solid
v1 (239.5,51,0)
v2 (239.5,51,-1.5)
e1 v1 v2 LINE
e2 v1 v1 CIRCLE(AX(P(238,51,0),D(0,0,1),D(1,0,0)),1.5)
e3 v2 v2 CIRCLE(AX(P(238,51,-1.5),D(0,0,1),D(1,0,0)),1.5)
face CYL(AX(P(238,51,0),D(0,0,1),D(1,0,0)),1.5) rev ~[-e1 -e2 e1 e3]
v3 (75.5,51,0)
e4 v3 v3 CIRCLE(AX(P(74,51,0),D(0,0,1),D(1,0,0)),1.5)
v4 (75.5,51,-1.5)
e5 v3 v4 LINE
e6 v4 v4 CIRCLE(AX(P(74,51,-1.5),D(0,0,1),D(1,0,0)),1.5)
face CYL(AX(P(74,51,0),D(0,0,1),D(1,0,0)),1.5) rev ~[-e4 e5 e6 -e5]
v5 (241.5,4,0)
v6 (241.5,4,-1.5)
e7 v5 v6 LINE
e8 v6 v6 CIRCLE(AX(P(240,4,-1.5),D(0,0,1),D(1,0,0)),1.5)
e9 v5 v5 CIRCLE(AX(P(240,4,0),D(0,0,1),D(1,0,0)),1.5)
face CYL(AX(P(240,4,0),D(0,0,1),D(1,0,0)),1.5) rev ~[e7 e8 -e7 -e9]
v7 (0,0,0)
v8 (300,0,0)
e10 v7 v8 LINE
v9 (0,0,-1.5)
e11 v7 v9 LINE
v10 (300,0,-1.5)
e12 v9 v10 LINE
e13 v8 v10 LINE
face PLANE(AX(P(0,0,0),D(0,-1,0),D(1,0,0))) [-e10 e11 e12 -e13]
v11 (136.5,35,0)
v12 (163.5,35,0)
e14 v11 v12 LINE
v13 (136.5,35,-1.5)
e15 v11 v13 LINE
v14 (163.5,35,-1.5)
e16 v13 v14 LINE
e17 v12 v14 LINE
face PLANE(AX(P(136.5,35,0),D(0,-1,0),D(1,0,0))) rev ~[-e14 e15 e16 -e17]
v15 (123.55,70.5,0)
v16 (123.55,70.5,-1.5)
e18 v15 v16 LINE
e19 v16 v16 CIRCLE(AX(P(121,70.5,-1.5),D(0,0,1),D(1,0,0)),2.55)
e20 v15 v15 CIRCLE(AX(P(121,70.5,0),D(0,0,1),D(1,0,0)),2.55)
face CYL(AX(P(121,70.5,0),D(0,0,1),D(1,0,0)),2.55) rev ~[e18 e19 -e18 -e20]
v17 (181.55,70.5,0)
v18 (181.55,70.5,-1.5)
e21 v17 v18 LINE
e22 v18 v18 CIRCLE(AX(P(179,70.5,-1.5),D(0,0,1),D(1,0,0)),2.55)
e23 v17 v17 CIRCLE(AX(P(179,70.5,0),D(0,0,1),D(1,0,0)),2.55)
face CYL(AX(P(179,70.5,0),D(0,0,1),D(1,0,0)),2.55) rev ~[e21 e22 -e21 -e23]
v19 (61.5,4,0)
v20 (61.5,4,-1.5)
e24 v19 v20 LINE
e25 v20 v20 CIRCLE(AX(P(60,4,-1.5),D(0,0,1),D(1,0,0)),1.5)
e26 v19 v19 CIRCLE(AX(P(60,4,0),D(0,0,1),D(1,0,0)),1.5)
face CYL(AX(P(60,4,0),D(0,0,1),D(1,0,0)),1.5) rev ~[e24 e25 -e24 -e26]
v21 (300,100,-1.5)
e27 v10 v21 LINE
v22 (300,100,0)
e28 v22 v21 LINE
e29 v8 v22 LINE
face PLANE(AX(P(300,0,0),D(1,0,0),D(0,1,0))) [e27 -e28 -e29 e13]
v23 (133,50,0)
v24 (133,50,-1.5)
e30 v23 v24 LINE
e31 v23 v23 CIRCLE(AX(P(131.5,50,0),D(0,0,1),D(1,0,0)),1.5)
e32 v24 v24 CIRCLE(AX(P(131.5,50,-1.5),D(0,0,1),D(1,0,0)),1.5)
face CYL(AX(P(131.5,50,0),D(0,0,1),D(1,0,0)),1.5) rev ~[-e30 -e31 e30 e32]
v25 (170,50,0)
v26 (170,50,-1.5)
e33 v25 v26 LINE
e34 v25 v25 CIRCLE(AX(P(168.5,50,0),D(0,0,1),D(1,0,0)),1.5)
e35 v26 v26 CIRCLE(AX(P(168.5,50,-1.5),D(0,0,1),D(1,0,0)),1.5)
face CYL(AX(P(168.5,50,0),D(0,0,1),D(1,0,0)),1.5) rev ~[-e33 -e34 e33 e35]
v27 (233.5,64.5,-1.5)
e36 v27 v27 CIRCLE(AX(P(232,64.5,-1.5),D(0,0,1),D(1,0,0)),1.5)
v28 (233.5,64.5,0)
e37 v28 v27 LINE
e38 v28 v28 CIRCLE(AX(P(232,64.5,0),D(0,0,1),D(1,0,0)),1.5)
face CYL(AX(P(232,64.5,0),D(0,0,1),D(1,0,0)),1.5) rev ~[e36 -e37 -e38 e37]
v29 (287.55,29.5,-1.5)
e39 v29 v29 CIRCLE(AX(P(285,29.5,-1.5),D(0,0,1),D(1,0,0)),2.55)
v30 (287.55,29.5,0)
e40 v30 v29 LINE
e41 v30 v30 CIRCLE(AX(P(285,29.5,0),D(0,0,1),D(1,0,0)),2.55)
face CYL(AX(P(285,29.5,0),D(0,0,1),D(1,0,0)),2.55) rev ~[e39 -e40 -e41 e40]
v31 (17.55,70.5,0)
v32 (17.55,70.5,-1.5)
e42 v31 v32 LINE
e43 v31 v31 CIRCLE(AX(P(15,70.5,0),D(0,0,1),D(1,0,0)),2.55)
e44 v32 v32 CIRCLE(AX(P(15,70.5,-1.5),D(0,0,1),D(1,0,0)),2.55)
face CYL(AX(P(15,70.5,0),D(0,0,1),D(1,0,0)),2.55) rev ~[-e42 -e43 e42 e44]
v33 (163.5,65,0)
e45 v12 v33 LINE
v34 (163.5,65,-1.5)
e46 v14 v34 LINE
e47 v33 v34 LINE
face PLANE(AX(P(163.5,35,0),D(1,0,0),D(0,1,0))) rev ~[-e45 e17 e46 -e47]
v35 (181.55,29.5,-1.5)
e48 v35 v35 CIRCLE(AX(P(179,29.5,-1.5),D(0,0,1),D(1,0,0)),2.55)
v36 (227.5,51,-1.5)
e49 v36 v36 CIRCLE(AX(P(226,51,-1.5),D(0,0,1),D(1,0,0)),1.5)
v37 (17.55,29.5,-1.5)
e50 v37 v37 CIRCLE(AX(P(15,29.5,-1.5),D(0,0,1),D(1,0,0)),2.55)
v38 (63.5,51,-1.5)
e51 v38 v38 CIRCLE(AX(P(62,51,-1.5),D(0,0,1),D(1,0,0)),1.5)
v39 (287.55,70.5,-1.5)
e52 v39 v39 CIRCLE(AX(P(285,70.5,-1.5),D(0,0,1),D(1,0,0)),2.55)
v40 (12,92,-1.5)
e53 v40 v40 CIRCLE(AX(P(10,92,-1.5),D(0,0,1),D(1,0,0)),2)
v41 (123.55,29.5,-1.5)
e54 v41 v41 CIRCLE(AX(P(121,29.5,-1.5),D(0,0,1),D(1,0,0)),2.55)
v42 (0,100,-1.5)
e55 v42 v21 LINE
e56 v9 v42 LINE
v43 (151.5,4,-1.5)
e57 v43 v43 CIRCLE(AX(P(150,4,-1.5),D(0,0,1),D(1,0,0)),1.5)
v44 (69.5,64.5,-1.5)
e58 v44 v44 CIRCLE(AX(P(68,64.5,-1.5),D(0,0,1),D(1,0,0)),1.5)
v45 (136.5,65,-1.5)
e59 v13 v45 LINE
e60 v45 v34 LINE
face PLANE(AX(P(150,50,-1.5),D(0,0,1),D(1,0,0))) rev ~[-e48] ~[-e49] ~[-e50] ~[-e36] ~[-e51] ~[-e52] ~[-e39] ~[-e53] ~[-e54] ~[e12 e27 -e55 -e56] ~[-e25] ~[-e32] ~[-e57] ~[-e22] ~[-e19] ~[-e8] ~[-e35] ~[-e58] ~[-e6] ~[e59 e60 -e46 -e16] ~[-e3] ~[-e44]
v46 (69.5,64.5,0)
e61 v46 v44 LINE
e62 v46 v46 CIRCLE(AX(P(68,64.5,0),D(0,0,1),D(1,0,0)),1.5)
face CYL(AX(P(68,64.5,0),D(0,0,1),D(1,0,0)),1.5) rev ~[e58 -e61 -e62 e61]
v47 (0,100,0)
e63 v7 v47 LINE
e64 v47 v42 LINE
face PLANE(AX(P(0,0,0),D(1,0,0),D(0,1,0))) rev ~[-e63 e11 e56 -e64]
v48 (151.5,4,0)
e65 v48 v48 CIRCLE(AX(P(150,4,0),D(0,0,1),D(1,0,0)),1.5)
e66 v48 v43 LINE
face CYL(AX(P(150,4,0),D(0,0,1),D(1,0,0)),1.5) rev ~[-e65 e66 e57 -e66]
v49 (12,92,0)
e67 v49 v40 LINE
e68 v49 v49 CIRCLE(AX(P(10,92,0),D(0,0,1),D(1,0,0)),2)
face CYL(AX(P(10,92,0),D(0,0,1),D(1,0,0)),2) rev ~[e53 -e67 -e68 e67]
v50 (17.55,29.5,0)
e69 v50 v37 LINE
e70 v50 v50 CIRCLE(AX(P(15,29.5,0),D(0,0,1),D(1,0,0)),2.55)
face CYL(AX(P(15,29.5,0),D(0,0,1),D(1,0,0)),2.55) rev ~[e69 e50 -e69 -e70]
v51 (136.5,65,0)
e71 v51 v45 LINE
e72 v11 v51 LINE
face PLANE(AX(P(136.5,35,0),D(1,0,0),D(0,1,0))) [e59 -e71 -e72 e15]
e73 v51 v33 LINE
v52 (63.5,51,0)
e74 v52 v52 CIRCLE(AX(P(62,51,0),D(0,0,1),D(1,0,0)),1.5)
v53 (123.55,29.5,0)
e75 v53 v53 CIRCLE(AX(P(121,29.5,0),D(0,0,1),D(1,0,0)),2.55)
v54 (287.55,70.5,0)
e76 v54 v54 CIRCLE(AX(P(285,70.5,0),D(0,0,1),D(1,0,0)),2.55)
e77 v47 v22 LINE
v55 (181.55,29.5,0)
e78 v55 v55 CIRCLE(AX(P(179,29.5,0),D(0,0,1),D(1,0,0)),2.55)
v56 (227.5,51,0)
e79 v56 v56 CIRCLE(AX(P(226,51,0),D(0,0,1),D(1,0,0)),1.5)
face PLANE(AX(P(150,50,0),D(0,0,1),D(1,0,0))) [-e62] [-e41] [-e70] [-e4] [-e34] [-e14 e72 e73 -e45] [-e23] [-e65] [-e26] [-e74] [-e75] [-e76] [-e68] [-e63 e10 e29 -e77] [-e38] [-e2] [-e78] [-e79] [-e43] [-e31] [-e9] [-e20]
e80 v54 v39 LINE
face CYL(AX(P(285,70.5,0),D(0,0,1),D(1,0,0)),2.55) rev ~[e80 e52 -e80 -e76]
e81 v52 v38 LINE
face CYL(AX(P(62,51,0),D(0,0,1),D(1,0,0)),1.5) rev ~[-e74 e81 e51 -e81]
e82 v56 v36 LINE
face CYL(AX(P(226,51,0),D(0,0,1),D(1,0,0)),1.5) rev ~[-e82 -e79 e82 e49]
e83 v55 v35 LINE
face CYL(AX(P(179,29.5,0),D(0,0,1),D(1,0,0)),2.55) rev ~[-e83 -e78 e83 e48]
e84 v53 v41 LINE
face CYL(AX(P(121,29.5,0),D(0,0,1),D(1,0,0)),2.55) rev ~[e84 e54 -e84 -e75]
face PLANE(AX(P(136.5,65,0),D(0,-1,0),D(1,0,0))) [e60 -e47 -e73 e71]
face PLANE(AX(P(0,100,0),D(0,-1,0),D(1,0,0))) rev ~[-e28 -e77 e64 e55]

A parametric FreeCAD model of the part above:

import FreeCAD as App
import Part
import Sketcher
from FreeCAD import Vector


def add_polygon(sketch, points):
    """Adds a closed chain of lines whose ends are joined by coincident constraints."""
    first, n = sketch.GeometryCount, len(points)
    for a, b in zip(points, points[1:] + points[:1]):
        sketch.addGeometry(Part.LineSegment(App.Vector(*a, 0), App.Vector(*b, 0)), False)
    for i in range(n):
        sketch.addConstraint(Sketcher.Constraint("Coincident", first + i, 2, first + (i + 1) % n, 1))

doc = App.newDocument("Part")
body = doc.addObject("PartDesign::Body", "Body")

# Sketch on XY plane
sketch1 = doc.addObject("Sketcher::SketchObject", "Sketch")
body.addObject(sketch1)
sketch1.AttachmentSupport = (doc.XY_Plane, [""])
sketch1.MapMode = "FlatFace"
add_polygon(sketch1, [(0, 100), (0, 0), (300, 0), (300, 100)])  # lines 0-3
sketch1.addGeometry(Part.Circle(Vector(60, 4, 0), Vector(0, 0, 1), 1.5), False)  # 4
sketch1.addGeometry(Part.Circle(Vector(15, 29.5, 0), Vector(0, 0, 1), 2.5), False)  # 5
sketch1.addGeometry(Part.Circle(Vector(121, 29.5, 0), Vector(0, 0, 1), 2.5), False)  # 6
sketch1.addGeometry(Part.Circle(Vector(150, 4, 0), Vector(0, 0, 1), 1.5), False)  # 7
sketch1.addGeometry(Part.Circle(Vector(240, 4, 0), Vector(0, 0, 1), 1.5), False)  # 8
sketch1.addGeometry(Part.Circle(Vector(179, 29.5, 0), Vector(0, 0, 1), 2.5), False)  # 9
sketch1.addGeometry(Part.Circle(Vector(285, 29.5, 0), Vector(0, 0, 1), 2.5), False)  # 10
sketch1.addGeometry(Part.Circle(Vector(62, 51, 0), Vector(0, 0, 1), 1.5), False)  # 11
sketch1.addGeometry(Part.Circle(Vector(74, 51, 0), Vector(0, 0, 1), 1.5), False)  # 12
sketch1.addGeometry(Part.Circle(Vector(15, 70.5, 0), Vector(0, 0, 1), 2.5), False)  # 13
sketch1.addGeometry(Part.Circle(Vector(68, 64.5, 0), Vector(0, 0, 1), 1.5), False)  # 14
sketch1.addGeometry(Part.Circle(Vector(131.5, 50, 0), Vector(0, 0, 1), 1.5), False)  # 15
sketch1.addGeometry(Part.Circle(Vector(121, 70.5, 0), Vector(0, 0, 1), 2.5), False)  # 16
sketch1.addGeometry(Part.Circle(Vector(10, 92, 0), Vector(0, 0, 1), 2), False)  # 17
add_polygon(sketch1, [(163.5, 35), (136.5, 35), (136.5, 65), (163.5, 65)])  # lines 18-21
sketch1.addGeometry(Part.Circle(Vector(168.5, 50, 0), Vector(0, 0, 1), 1.5), False)  # 22
sketch1.addGeometry(Part.Circle(Vector(179, 70.5, 0), Vector(0, 0, 1), 2.5), False)  # 23
sketch1.addGeometry(Part.Circle(Vector(226, 51, 0), Vector(0, 0, 1), 1.5), False)  # 24
sketch1.addGeometry(Part.Circle(Vector(238, 51, 0), Vector(0, 0, 1), 1.5), False)  # 25
sketch1.addGeometry(Part.Circle(Vector(232, 64.5, 0), Vector(0, 0, 1), 1.5), False)  # 26
sketch1.addGeometry(Part.Circle(Vector(285, 70.5, 0), Vector(0, 0, 1), 2.5), False)  # 27
sketch1.addConstraint(Sketcher.Constraint("Vertical", 0))
sketch1.addConstraint(Sketcher.Constraint("Horizontal", 1))
sketch1.addConstraint(Sketcher.Constraint("Vertical", 2))
sketch1.addConstraint(Sketcher.Constraint("Horizontal", 3))
sketch1.addConstraint(Sketcher.Constraint("Horizontal", 18))
sketch1.addConstraint(Sketcher.Constraint("Vertical", 19))
sketch1.addConstraint(Sketcher.Constraint("Horizontal", 20))
sketch1.addConstraint(Sketcher.Constraint("Vertical", 21))
sketch1.addConstraint(Sketcher.Constraint("Coincident", 0, 2, -1, 1))
sketch1.addConstraint(Sketcher.Constraint("Equal", 5, 6))
sketch1.addConstraint(Sketcher.Constraint("Equal", 4, 7))
sketch1.addConstraint(Sketcher.Constraint("Equal", 7, 8))
sketch1.addConstraint(Sketcher.Constraint("Equal", 6, 9))
sketch1.addConstraint(Sketcher.Constraint("Equal", 9, 10))
sketch1.addConstraint(Sketcher.Constraint("Equal", 8, 11))
sketch1.addConstraint(Sketcher.Constraint("Equal", 11, 12))
sketch1.addConstraint(Sketcher.Constraint("Equal", 10, 13))
sketch1.addConstraint(Sketcher.Constraint("Equal", 12, 14))
sketch1.addConstraint(Sketcher.Constraint("Equal", 14, 15))
sketch1.addConstraint(Sketcher.Constraint("Equal", 13, 16))
sketch1.addConstraint(Sketcher.Constraint("Equal", 15, 22))
sketch1.addConstraint(Sketcher.Constraint("Equal", 16, 23))
sketch1.addConstraint(Sketcher.Constraint("Equal", 22, 24))
sketch1.addConstraint(Sketcher.Constraint("Equal", 24, 25))
sketch1.addConstraint(Sketcher.Constraint("Equal", 25, 26))
sketch1.addConstraint(Sketcher.Constraint("Equal", 23, 27))
sketch1.addConstraint(Sketcher.Constraint("Horizontal", 5, 3, 6, 3))
sketch1.addConstraint(Sketcher.Constraint("Horizontal", 4, 3, 7, 3))
sketch1.addConstraint(Sketcher.Constraint("Horizontal", 7, 3, 8, 3))
sketch1.addConstraint(Sketcher.Constraint("Horizontal", 6, 3, 9, 3))
sketch1.addConstraint(Sketcher.Constraint("Horizontal", 9, 3, 10, 3))
sketch1.addConstraint(Sketcher.Constraint("Horizontal", 11, 3, 12, 3))
sketch1.addConstraint(Sketcher.Constraint("Horizontal", 13, 3, 16, 3))
sketch1.addConstraint(Sketcher.Constraint("Horizontal", 15, 3, 22, 3))
sketch1.addConstraint(Sketcher.Constraint("Horizontal", 16, 3, 23, 3))
sketch1.addConstraint(Sketcher.Constraint("Horizontal", 12, 3, 24, 3))
sketch1.addConstraint(Sketcher.Constraint("Horizontal", 24, 3, 25, 3))
sketch1.addConstraint(Sketcher.Constraint("Horizontal", 14, 3, 26, 3))
sketch1.addConstraint(Sketcher.Constraint("Horizontal", 23, 3, 27, 3))
sketch1.addConstraint(Sketcher.Constraint("Vertical", 5, 3, 13, 3))
sketch1.addConstraint(Sketcher.Constraint("Vertical", 6, 3, 16, 3))
sketch1.addConstraint(Sketcher.Constraint("Vertical", 9, 3, 23, 3))
sketch1.addConstraint(Sketcher.Constraint("Vertical", 10, 3, 27, 3))
sketch1.addConstraint(Sketcher.Constraint("Diameter", 4, 3.0))
sketch1.addConstraint(Sketcher.Constraint("Diameter", 17, 4.0))
sketch1.addConstraint(Sketcher.Constraint("Diameter", 5, 5.1))
sketch1.addConstraint(Sketcher.Constraint("DistanceX", 1, 1, 1, 2, 300.0))
sketch1.addConstraint(Sketcher.Constraint("DistanceX", 18, 2, 18, 1, 27.0))
sketch1.addConstraint(Sketcher.Constraint("DistanceY", 0, 2, 0, 1, 100.0))
sketch1.addConstraint(Sketcher.Constraint("DistanceY", 19, 1, 19, 2, 30.0))
sketch1.addConstraint(Sketcher.Constraint("DistanceX", -1, 1, 4, 3, 60.0))
sketch1.addConstraint(Sketcher.Constraint("DistanceY", -1, 1, 4, 3, 4.0))
sketch1.addConstraint(Sketcher.Constraint("DistanceX", -1, 1, 5, 3, 15.0))
sketch1.addConstraint(Sketcher.Constraint("DistanceX", -1, 1, 6, 3, 121.0))
sketch1.addConstraint(Sketcher.Constraint("DistanceX", -1, 1, 7, 3, 150.0))
sketch1.addConstraint(Sketcher.Constraint("DistanceX", -1, 1, 8, 3, 240.0))
sketch1.addConstraint(Sketcher.Constraint("DistanceX", -1, 1, 9, 3, 179.0))
sketch1.addConstraint(Sketcher.Constraint("DistanceX", -1, 1, 10, 3, 285.0))
sketch1.addConstraint(Sketcher.Constraint("DistanceX", -1, 1, 11, 3, 62.0))
sketch1.addConstraint(Sketcher.Constraint("DistanceY", -1, 1, 11, 3, 51.0))
sketch1.addConstraint(Sketcher.Constraint("DistanceX", -1, 1, 12, 3, 74.0))
sketch1.addConstraint(Sketcher.Constraint("DistanceX", -1, 1, 14, 3, 68.0))
sketch1.addConstraint(Sketcher.Constraint("DistanceY", -1, 1, 15, 3, 50.0))
sketch1.addConstraint(Sketcher.Constraint("DistanceX", -1, 1, 17, 3, 10.0))
sketch1.addConstraint(Sketcher.Constraint("DistanceY", -1, 1, 17, 3, 92.0))
sketch1.addConstraint(Sketcher.Constraint("DistanceX", -1, 1, 24, 3, 226.0))
sketch1.addConstraint(Sketcher.Constraint("DistanceX", -1, 1, 25, 3, 238.0))
sketch1.addConstraint(Sketcher.Constraint("DistanceX", -1, 1, 26, 3, 232.0))
sketch1.addConstraint(Sketcher.Constraint("DistanceY", -1, 1, 18, 2, 35.0))
sketch1.addConstraint(Sketcher.Constraint("DistanceY", 5, 3, 13, 3, 41.0))
sketch1.addConstraint(Sketcher.Constraint("DistanceY", 14, 3, 13, 3, 6.0))
sketch1.addConstraint(Sketcher.Constraint("DistanceX", 15, 3, 22, 3, 37.0))
sketch1.addConstraint(Sketcher.Constraint("DistanceX", 15, 3, 18, 2, 5.0))
sketch1.addConstraint(Sketcher.Constraint("DistanceY", -1, 1, 5, 3, 29.5))
sketch1.addConstraint(Sketcher.Constraint("DistanceX", -1, 1, 15, 3, 131.5))
pad1 = doc.addObject("PartDesign::Pad", "Pad")
body.addObject(pad1)
pad1.Profile = sketch1
pad1.Length = 1.5
pad1.Reversed = True

doc.recompute()
